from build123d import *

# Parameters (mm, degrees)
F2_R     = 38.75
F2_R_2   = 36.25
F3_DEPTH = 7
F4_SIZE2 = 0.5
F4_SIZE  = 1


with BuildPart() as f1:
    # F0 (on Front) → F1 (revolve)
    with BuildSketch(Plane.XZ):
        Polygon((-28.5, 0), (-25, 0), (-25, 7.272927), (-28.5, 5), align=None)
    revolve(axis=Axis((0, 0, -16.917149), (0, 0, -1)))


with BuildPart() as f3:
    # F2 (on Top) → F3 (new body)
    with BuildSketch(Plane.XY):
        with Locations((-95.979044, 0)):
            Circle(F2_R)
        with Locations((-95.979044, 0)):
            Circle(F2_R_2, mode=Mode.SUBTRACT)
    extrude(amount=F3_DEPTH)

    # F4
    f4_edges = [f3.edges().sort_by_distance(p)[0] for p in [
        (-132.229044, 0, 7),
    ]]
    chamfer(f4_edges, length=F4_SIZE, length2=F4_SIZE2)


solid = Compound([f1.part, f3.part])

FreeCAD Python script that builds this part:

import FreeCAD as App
import Part
import Sketcher
from FreeCAD import Vector
Q = App.Units.Quantity


def edges_at(feature, points):
    """Names of the edges that pass closest to the given points."""
    edges = feature.Shape.Edges
    near = lambda p: min(range(len(edges)), key=lambda i: edges[i].distToShape(Part.Vertex(*p))[0])
    return sorted({f"Edge{near(p) + 1}" for p in points})


def add_polygon(sketch, points):
    """Adds a closed chain of lines whose ends are joined by coincident constraints."""
    first, n = sketch.GeometryCount, len(points)
    for a, b in zip(points, points[1:] + points[:1]):
        sketch.addGeometry(Part.LineSegment(App.Vector(*a, 0), App.Vector(*b, 0)), False)
    for i in range(n):
        sketch.addConstraint(Sketcher.Constraint("Coincident", first + i, 2, first + (i + 1) % n, 1))

doc = App.newDocument("Part")
body = doc.addObject("PartDesign::Body", "Body")

# Sketch on XZ plane
sketch1 = body.newObject("Sketcher::SketchObject", "Sketch")
sketch1.AttachmentSupport = (doc.getObject("XZ_Plane"), [""])
sketch1.MapMode = "FlatFace"
add_polygon(sketch1, [(-28.5, 0), (-25, 0), (-25, 7.3), (-28.5, 5)])  # lines 0-3
sketch1.addConstraint(Sketcher.Constraint("Horizontal", 0))
sketch1.addConstraint(Sketcher.Constraint("Vertical", 1))
sketch1.addConstraint(Sketcher.Constraint("Vertical", 3))
sketch1.addConstraint(Sketcher.Constraint("PointOnObject", 0, 2, -1))
sketch1.addConstraint(Sketcher.Constraint("DistanceY", 3, 2, 3, 1, Q("5 mm")))
sketch1.addConstraint(Sketcher.Constraint("Angle", 2, Q("-146.999995 deg")))
sketch1.addConstraint(Sketcher.Constraint("DistanceX", 0, 1, 0, 2, Q("3.5 mm")))
sketch1.addConstraint(Sketcher.Constraint("DistanceX", 0, 2, -1, 1, Q("25 mm")))
revolution = body.newObject("PartDesign::Revolution", "Revolution")
revolution.Profile = sketch1
revolution.ReferenceAxis = (sketch1, ["V_Axis"])
revolution.Angle = 360
body2 = doc.addObject("PartDesign::Body", "Body001")

# Sketch on XY plane
sketch2 = body2.newObject("Sketcher::SketchObject", "Sketch001")
sketch2.AttachmentSupport = (doc.getObject("XY_Plane001"), [""])
sketch2.MapMode = "FlatFace"
sketch2.addGeometry(Part.Circle(Vector(-96, 0, 0), Vector(0, 0, 1), 39), False)
sketch2.addGeometry(Part.Circle(Vector(-96, 0, 0), Vector(0, 0, 1), 36), False)
sketch2.addConstraint(Sketcher.Constraint("Coincident", 1, 3, 0, 3))
sketch2.addConstraint(Sketcher.Constraint("PointOnObject", 0, 3, -1))
sketch2.addConstraint(Sketcher.Constraint("Diameter", 0, Q("77.5 mm")))
sketch2.addConstraint(Sketcher.Constraint("Diameter", 1, Q("72.5 mm")))
sketch2.addConstraint(Sketcher.Constraint("DistanceX", 0, 3, -1, 1, Q("95.979044 mm")))
pad1 = body2.newObject("PartDesign::Pad", "Pad")
pad1.Profile = sketch2
pad1.Length = 7
doc.recompute()

chamfer = body2.newObject("PartDesign::Chamfer", "Chamfer")
chamfer.Base = (pad1, edges_at(pad1, [(-132.229, 0, 7)]))
chamfer.ChamferType = "Two distances"
chamfer.Size = 1
chamfer.Size2 = 0.5

doc.recompute()
